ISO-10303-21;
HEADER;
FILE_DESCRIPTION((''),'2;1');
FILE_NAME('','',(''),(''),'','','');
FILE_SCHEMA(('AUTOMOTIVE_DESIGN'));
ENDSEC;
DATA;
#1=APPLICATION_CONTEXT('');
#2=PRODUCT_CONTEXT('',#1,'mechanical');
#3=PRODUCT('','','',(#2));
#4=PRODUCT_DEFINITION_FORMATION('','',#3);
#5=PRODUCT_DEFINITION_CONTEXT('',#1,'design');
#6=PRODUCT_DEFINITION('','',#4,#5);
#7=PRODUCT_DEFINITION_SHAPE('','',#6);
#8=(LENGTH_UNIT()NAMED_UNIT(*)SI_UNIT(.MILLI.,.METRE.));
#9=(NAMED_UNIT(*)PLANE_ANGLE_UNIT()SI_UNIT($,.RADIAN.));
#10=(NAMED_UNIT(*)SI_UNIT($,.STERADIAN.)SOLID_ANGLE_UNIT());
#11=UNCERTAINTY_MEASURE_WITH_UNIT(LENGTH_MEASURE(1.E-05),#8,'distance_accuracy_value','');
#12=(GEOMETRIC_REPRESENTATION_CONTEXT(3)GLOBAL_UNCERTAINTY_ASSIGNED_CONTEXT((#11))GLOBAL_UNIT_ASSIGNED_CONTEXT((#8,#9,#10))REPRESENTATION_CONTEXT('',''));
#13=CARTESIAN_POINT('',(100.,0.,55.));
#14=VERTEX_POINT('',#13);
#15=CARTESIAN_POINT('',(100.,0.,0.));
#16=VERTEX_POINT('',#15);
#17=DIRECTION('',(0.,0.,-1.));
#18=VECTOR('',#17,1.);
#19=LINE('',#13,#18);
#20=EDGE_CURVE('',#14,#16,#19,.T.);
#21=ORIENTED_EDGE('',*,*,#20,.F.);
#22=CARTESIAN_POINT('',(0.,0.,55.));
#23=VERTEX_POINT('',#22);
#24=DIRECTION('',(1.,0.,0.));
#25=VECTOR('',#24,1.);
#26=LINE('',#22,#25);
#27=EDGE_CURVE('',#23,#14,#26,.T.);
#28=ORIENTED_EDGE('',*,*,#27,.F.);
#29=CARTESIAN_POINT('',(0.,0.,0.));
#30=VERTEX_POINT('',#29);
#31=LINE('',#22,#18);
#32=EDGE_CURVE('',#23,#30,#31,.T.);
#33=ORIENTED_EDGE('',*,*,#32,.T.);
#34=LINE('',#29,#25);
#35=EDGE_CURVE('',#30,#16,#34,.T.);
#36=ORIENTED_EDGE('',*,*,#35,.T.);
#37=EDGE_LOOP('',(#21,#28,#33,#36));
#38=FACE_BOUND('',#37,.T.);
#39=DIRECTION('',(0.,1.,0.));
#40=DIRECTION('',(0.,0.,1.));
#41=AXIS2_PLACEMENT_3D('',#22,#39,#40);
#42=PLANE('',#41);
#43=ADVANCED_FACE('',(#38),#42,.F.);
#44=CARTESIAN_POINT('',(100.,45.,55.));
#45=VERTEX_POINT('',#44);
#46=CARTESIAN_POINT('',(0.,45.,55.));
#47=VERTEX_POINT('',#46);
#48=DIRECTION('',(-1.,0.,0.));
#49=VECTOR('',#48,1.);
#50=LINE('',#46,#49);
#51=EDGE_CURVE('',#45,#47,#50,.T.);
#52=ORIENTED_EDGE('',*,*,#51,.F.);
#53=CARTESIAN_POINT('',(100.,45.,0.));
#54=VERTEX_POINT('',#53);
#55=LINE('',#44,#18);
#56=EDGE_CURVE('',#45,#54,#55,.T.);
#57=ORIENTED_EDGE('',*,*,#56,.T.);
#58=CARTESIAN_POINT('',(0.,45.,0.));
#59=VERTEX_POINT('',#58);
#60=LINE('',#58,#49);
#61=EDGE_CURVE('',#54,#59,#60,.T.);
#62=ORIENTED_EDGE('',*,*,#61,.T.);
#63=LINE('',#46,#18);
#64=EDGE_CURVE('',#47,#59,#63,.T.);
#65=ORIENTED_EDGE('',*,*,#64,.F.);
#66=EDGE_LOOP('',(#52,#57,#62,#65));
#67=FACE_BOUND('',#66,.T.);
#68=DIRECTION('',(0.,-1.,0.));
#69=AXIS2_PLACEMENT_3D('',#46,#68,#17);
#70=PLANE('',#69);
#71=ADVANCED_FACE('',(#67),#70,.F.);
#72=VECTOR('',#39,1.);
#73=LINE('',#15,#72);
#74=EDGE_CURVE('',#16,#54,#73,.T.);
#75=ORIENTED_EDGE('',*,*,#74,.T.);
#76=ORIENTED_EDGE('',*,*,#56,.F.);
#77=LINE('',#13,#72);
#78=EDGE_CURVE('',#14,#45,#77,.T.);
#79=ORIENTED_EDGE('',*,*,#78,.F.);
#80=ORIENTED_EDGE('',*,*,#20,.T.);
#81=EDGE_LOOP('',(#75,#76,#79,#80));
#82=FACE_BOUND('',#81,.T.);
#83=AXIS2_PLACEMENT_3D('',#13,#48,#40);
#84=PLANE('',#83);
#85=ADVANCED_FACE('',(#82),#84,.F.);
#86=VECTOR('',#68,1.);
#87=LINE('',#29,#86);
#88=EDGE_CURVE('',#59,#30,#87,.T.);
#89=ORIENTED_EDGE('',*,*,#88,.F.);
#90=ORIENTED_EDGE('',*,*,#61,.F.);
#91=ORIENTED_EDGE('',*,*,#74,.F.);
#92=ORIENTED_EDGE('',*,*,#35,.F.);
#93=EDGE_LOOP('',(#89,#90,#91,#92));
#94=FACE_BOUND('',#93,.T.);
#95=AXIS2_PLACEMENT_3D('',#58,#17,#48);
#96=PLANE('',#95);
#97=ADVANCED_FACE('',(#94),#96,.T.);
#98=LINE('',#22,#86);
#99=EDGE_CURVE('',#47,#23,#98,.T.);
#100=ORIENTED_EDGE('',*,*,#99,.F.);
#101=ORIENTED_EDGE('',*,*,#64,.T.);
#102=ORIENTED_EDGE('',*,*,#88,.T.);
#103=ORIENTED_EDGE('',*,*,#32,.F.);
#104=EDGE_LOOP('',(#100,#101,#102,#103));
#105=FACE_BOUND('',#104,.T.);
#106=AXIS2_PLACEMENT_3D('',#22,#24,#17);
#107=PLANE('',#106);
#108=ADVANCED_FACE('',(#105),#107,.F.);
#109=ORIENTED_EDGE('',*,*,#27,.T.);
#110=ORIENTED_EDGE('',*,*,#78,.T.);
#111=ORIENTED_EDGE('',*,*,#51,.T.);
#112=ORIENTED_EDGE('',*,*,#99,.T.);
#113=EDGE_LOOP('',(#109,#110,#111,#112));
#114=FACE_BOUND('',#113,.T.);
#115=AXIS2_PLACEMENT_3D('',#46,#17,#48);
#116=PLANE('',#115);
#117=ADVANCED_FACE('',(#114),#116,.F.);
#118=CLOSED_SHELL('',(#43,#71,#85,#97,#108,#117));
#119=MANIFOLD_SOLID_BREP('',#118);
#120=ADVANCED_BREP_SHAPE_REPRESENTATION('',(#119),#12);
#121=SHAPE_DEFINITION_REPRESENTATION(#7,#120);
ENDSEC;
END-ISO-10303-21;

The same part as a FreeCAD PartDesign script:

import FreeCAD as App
import Part
import Sketcher

doc = App.newDocument("Part")
body = doc.addObject("PartDesign::Body", "Body")

# Sketch on XY plane
sketch1 = body.newObject("Sketcher::SketchObject", "Sketch")
sketch1.AttachmentSupport = (doc.getObject("XY_Plane"), [""])
sketch1.MapMode = "FlatFace"
sketch1.addGeometry(Part.LineSegment(App.Vector(0, 45, 0), App.Vector(0, 0, 0)), False)
sketch1.addGeometry(Part.LineSegment(App.Vector(0, 0, 0), App.Vector(100, 0, 0)), False)
sketch1.addGeometry(Part.LineSegment(App.Vector(100, 0, 0), App.Vector(100, 45, 0)), False)
sketch1.addGeometry(Part.LineSegment(App.Vector(100, 45, 0), App.Vector(0, 45, 0)), False)
sketch1.addConstraint(Sketcher.Constraint("Coincident", 0, 2, 1, 1))
sketch1.addConstraint(Sketcher.Constraint("Coincident", 1, 2, 2, 1))
sketch1.addConstraint(Sketcher.Constraint("Coincident", 2, 2, 3, 1))
sketch1.addConstraint(Sketcher.Constraint("Coincident", 3, 2, 0, 1))
sketch1.addConstraint(Sketcher.Constraint("Vertical", 0))
sketch1.addConstraint(Sketcher.Constraint("Horizontal", 1))
sketch1.addConstraint(Sketcher.Constraint("Vertical", 2))
sketch1.addConstraint(Sketcher.Constraint("Horizontal", 3))
sketch1.addConstraint(Sketcher.Constraint("Coincident", 0, 2, -1, 1))
sketch1.addConstraint(Sketcher.Constraint("DistanceX", 1, 1, 1, 2, 100.0))
sketch1.addConstraint(Sketcher.Constraint("DistanceY", 0, 2, 0, 1, 45.0))
pad1 = body.newObject("PartDesign::Pad", "Pad")
pad1.Profile = sketch1
pad1.Length = 55

doc.recompute()
